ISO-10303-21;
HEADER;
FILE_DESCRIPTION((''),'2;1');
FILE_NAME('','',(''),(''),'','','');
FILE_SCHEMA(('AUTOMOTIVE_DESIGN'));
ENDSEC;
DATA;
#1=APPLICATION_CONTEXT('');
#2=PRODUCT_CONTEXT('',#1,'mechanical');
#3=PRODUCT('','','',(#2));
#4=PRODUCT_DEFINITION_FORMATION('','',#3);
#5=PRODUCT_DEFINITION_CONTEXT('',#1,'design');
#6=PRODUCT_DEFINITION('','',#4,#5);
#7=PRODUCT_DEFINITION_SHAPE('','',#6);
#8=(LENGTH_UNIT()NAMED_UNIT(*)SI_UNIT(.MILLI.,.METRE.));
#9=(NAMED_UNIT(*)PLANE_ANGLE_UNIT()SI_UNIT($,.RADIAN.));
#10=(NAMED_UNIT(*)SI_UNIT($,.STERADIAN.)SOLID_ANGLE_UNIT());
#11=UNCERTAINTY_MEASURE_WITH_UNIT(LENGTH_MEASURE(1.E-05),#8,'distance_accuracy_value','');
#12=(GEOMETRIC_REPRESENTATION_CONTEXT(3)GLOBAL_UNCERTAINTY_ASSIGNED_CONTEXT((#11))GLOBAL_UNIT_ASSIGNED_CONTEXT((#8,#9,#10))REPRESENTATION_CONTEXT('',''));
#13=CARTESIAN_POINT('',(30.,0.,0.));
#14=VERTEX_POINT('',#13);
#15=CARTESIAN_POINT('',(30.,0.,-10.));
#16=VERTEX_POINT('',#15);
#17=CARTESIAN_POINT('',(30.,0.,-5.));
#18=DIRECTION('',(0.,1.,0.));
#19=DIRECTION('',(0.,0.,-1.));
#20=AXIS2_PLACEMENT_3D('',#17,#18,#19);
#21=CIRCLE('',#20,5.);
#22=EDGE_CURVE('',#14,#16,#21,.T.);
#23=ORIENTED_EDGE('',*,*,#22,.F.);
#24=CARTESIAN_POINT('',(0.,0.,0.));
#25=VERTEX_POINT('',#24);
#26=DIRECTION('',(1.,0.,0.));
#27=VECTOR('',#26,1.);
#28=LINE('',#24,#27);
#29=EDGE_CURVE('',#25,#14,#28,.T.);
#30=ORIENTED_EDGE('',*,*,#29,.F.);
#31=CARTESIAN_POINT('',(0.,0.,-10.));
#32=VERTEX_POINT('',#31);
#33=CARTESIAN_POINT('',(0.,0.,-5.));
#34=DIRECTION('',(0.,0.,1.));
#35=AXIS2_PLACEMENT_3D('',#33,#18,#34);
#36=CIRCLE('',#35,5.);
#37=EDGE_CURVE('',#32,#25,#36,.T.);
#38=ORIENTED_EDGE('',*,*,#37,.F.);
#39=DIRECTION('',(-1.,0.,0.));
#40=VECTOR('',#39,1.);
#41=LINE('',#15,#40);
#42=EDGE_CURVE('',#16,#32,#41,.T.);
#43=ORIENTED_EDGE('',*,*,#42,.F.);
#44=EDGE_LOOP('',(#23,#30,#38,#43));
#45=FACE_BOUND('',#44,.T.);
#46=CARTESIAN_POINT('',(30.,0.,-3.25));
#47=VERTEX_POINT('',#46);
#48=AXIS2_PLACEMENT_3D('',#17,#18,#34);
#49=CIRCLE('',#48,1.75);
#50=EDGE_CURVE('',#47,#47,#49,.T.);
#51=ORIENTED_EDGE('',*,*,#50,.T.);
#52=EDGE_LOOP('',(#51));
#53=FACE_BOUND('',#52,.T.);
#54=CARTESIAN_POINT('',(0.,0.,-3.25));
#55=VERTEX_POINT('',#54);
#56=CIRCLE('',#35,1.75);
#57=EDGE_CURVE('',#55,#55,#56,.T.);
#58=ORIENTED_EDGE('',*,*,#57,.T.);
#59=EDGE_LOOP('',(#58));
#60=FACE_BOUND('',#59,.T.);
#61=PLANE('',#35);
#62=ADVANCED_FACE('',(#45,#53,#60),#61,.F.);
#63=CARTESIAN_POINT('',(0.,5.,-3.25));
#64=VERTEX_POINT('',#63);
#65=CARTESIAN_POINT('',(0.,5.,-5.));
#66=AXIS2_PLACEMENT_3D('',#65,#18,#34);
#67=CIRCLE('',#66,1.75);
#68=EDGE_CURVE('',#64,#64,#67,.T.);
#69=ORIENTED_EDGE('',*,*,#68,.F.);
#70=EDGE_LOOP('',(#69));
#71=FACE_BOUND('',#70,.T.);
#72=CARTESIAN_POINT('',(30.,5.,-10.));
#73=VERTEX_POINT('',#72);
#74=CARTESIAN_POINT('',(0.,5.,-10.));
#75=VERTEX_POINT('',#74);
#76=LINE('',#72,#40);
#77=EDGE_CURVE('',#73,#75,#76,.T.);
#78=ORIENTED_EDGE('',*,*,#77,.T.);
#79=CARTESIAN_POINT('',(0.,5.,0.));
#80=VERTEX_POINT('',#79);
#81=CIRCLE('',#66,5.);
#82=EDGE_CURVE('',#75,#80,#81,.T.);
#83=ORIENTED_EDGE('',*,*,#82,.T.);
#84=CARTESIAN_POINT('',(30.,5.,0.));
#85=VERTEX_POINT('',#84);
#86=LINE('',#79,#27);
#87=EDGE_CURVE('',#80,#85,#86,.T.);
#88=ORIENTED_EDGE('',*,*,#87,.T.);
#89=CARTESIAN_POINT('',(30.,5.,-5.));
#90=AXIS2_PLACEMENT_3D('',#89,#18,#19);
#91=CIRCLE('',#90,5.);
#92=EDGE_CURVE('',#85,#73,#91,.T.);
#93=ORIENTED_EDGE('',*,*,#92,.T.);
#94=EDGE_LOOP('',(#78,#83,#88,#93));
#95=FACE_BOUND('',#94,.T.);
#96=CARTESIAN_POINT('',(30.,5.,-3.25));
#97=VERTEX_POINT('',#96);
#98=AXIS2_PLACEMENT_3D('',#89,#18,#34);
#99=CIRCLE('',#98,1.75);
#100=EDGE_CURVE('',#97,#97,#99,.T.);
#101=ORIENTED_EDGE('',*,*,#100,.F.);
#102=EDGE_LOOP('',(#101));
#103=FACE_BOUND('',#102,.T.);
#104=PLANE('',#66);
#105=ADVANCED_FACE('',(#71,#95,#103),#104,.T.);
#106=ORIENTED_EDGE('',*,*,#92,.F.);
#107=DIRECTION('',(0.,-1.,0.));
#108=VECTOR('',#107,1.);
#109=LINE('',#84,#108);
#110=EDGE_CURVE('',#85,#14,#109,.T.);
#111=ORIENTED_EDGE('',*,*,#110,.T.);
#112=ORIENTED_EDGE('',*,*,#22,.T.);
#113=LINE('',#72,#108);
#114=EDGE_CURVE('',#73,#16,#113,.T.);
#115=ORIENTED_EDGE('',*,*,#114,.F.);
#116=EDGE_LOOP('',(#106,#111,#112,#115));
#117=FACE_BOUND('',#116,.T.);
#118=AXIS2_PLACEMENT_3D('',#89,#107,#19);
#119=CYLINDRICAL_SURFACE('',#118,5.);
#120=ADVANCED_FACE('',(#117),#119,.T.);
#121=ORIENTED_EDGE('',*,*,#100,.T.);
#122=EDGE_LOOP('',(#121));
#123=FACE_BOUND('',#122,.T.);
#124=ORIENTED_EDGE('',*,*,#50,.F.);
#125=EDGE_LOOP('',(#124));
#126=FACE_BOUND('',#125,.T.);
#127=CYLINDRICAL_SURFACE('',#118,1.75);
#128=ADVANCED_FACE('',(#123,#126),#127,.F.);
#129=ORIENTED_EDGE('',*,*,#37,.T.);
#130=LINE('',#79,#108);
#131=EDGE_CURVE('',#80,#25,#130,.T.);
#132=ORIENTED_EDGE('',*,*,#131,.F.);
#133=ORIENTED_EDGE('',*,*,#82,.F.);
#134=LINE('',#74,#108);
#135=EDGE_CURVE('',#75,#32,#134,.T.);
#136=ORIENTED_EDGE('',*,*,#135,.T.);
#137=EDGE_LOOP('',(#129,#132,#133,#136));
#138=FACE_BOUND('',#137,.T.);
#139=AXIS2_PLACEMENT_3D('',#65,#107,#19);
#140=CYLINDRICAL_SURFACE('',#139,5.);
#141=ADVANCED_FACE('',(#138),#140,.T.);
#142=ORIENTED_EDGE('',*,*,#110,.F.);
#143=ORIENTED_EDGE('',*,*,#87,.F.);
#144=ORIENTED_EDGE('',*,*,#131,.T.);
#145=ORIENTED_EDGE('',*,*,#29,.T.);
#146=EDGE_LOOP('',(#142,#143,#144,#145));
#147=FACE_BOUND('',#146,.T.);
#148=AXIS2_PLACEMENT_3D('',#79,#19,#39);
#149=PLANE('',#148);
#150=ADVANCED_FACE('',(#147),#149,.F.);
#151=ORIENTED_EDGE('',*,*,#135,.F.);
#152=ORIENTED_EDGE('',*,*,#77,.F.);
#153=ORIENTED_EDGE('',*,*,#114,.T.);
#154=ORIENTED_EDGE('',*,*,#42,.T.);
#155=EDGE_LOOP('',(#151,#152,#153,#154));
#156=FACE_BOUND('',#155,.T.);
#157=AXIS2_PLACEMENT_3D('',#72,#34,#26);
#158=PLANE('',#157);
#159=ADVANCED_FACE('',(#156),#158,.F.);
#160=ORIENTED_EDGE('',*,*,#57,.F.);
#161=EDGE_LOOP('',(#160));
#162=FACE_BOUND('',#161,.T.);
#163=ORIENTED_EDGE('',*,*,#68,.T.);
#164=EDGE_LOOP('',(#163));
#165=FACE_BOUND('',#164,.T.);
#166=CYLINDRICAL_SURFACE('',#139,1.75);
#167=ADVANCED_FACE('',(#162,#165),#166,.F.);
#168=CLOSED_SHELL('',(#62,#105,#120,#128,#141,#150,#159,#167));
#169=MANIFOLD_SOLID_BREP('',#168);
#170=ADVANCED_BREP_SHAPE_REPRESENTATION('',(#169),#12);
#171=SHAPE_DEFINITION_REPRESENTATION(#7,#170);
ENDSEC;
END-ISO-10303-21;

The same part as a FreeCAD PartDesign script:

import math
import FreeCAD as App
import Part
import Sketcher
Q = App.Units.Quantity

doc = App.newDocument("Part")
body = doc.addObject("PartDesign::Body", "Body")

# Sketch on XZ plane
sketch1 = doc.addObject("Sketcher::SketchObject", "Sketch")
body.addObject(sketch1)
sketch1.AttachmentSupport = (doc.XZ_Plane, [""])
sketch1.MapMode = "FlatFace"
sketch1.addGeometry([
    Part.LineSegment(App.Vector(0, 0, 0), App.Vector(30, 0, 0)),  # 0
    Part.ArcOfCircle(Part.Circle(App.Vector(30, -5, 0), App.Vector(0, 0, 1), 5), math.radians(-90), math.radians(90)),  # 1
    Part.LineSegment(App.Vector(30, -10, 0), App.Vector(0, -10, 0)),  # 2
    Part.ArcOfCircle(Part.Circle(App.Vector(0, -5, 0), App.Vector(0, 0, 1), 5), math.radians(90), math.radians(270)),  # 3
    Part.Circle(App.Vector(0, -5, 0), App.Vector(0, 0, 1), 1.8),  # 4
    Part.Circle(App.Vector(30, -5, 0), App.Vector(0, 0, 1), 1.8),  # 5
], False)
sketch1.addConstraint([
    Sketcher.Constraint("Tangent", 0, 2, 1, 2),
    Sketcher.Constraint("Tangent", 1, 1, 2, 1),
    Sketcher.Constraint("Tangent", 2, 2, 3, 2),
    Sketcher.Constraint("Tangent", 3, 1, 0, 1),
    Sketcher.Constraint("Horizontal", 0),
    Sketcher.Constraint("Horizontal", 2),
    Sketcher.Constraint("Coincident", 3, 1, -1, 1),
    Sketcher.Constraint("Coincident", 4, 3, 3, 3),
    Sketcher.Constraint("Coincident", 5, 3, 1, 3),
    Sketcher.Constraint("Equal", 4, 5),
    Sketcher.Constraint("Radius", 1, Q("5 mm")),
    Sketcher.Constraint("Diameter", 4, Q("3.5 mm")),
    Sketcher.Constraint("DistanceX", 0, 1, 0, 2, Q("30 mm")),
])
pad1 = doc.addObject("PartDesign::Pad", "Pad")
body.addObject(pad1)
pad1.Profile = sketch1
pad1.Length = 5
pad1.Reversed = True

doc.recompute()
